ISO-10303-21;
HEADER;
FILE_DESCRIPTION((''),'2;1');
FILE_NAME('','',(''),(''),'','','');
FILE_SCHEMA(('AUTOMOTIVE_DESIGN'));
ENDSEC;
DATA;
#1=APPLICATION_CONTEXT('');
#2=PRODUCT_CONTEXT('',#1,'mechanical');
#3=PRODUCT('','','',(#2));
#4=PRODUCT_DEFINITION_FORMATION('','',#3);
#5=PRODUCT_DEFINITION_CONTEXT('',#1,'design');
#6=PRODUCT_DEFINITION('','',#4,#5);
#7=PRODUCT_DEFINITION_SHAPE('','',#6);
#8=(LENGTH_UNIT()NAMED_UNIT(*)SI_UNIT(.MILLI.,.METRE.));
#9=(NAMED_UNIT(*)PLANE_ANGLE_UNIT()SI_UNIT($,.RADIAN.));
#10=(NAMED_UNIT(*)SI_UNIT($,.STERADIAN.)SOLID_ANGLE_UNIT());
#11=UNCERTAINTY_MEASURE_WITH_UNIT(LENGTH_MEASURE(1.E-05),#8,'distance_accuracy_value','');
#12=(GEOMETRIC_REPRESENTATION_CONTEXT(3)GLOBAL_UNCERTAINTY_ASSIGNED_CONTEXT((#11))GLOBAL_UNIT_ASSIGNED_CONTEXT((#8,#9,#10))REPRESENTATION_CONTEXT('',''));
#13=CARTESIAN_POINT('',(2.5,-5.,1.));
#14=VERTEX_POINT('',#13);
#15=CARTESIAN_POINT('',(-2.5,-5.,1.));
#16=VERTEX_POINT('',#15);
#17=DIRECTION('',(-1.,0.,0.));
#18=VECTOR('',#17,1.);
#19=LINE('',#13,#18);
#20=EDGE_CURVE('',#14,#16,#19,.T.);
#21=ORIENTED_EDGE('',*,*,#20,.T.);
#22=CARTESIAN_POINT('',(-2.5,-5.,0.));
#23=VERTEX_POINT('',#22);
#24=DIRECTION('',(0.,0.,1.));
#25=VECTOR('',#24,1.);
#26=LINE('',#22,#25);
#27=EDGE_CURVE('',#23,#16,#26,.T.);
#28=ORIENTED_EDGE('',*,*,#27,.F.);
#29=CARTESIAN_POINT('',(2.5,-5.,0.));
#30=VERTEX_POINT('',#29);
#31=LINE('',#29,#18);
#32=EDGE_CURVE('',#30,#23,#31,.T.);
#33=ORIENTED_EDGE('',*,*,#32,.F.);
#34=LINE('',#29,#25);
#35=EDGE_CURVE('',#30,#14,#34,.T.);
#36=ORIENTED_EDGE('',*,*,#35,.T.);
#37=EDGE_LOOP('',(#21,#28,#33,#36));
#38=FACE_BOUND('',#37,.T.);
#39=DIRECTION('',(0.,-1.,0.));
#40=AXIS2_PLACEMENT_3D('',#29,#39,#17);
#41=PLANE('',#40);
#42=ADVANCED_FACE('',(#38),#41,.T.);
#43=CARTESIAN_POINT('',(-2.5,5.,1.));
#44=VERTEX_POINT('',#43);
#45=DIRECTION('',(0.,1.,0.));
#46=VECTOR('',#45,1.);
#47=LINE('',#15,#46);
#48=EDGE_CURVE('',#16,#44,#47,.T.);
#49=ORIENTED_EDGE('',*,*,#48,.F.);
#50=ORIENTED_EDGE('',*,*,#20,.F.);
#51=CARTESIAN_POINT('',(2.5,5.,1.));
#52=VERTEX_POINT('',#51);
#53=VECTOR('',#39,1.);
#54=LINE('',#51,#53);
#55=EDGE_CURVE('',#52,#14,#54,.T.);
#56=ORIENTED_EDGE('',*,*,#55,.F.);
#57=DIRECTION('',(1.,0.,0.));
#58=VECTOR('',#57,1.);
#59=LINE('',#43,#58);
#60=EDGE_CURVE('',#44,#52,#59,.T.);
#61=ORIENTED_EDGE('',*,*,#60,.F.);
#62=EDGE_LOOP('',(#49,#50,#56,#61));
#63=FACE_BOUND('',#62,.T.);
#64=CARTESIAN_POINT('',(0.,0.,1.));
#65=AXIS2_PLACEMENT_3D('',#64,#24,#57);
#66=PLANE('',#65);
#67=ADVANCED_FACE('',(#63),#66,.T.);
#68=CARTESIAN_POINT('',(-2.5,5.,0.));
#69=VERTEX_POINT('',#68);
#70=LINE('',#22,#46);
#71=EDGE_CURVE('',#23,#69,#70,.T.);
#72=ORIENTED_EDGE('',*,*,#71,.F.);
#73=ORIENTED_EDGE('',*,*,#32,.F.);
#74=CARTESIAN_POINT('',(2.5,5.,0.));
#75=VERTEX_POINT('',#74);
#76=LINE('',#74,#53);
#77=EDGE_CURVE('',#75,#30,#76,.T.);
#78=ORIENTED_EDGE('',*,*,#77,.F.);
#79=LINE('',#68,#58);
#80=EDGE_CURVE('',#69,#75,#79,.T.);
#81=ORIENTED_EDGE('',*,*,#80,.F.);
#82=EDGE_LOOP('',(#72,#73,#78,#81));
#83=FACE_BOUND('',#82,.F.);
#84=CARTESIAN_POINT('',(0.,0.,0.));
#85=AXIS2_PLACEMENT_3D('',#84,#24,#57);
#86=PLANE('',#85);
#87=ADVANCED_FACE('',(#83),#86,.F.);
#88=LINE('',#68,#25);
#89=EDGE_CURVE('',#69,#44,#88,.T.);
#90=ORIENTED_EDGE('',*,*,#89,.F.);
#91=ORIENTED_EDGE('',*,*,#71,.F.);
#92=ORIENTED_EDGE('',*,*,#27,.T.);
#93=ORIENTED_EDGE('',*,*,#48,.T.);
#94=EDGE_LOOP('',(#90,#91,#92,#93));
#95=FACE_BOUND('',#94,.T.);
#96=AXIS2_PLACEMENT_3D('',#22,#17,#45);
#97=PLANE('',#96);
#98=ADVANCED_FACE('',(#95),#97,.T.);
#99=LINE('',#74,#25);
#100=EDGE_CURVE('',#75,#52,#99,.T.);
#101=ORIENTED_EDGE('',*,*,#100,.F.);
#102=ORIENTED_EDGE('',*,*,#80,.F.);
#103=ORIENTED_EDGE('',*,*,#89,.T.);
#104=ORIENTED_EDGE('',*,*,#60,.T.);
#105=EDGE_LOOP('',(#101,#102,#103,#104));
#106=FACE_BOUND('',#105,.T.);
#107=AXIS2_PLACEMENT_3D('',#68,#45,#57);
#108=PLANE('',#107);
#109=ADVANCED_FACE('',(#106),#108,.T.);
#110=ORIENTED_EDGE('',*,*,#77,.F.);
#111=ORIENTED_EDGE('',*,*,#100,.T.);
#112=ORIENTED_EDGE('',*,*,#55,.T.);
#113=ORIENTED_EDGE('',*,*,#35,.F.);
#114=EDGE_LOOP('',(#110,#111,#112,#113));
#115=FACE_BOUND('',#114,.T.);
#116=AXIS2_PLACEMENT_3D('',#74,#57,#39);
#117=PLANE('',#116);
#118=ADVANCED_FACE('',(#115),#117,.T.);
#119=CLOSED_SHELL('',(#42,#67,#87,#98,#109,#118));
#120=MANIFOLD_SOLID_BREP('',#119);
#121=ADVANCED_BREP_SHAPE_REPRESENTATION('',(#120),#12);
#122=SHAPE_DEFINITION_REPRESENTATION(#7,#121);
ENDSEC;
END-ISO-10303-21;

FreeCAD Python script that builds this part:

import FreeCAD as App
import Part
import Sketcher
from FreeCAD import Vector

doc = App.newDocument("Part")
params = doc.addObject("Spreadsheet::Sheet", "Params")
for row, (alias, value) in enumerate([
    ("sketch1_width", "5 mm"),
    ("sketch1_height", "10 mm"),
    ("pad1_length", "1 mm"),
], start=1):
    params.set(f"A{row}", alias)
    params.set(f"B{row}", "=" + value)
    params.setAlias(f"B{row}", alias)

body = doc.addObject("PartDesign::Body", "Body")

sketch1 = body.newObject("Sketcher::SketchObject", "Sketch")
sketch1.AttachmentSupport = (doc.getObject("XY_Plane"), [""])
sketch1.MapMode = "FlatFace"
sketch1.addGeometry(Part.LineSegment(Vector(-2, -5, 0), Vector(2, -5, 0)), False)
sketch1.addGeometry(Part.LineSegment(Vector(2, -5, 0), Vector(2, 5, 0)), False)
sketch1.addGeometry(Part.LineSegment(Vector(2, 5, 0), Vector(-2, 5, 0)), False)
sketch1.addGeometry(Part.LineSegment(Vector(-2, 5, 0), Vector(-2, -5, 0)), False)
sketch1.addConstraint(Sketcher.Constraint("Coincident", 0, 2, 1, 1))
sketch1.addConstraint(Sketcher.Constraint("Coincident", 1, 2, 2, 1))
sketch1.addConstraint(Sketcher.Constraint("Coincident", 2, 2, 3, 1))
sketch1.addConstraint(Sketcher.Constraint("Coincident", 3, 2, 0, 1))
sketch1.addConstraint(Sketcher.Constraint("Horizontal", 0))
sketch1.addConstraint(Sketcher.Constraint("Vertical", 1))
sketch1.addConstraint(Sketcher.Constraint("Horizontal", 2))
sketch1.addConstraint(Sketcher.Constraint("Vertical", 3))
sketch1.addConstraint(Sketcher.Constraint("Symmetric", 0, 2, 2, 2, -1, 1))
sketch1.addConstraint(Sketcher.Constraint("DistanceX", 0, 1, 0, 2, 5.0))
sketch1.addConstraint(Sketcher.Constraint("DistanceY", 1, 1, 1, 2, 10.0))
sketch1.setExpression("Constraints[9]", "Params.sketch1_width")
sketch1.setExpression("Constraints[10]", "Params.sketch1_height")
pad1 = body.newObject("PartDesign::Pad", "Pad")
pad1.Profile = sketch1
pad1.setExpression("Length", "Params.pad1_length")

doc.recompute()
